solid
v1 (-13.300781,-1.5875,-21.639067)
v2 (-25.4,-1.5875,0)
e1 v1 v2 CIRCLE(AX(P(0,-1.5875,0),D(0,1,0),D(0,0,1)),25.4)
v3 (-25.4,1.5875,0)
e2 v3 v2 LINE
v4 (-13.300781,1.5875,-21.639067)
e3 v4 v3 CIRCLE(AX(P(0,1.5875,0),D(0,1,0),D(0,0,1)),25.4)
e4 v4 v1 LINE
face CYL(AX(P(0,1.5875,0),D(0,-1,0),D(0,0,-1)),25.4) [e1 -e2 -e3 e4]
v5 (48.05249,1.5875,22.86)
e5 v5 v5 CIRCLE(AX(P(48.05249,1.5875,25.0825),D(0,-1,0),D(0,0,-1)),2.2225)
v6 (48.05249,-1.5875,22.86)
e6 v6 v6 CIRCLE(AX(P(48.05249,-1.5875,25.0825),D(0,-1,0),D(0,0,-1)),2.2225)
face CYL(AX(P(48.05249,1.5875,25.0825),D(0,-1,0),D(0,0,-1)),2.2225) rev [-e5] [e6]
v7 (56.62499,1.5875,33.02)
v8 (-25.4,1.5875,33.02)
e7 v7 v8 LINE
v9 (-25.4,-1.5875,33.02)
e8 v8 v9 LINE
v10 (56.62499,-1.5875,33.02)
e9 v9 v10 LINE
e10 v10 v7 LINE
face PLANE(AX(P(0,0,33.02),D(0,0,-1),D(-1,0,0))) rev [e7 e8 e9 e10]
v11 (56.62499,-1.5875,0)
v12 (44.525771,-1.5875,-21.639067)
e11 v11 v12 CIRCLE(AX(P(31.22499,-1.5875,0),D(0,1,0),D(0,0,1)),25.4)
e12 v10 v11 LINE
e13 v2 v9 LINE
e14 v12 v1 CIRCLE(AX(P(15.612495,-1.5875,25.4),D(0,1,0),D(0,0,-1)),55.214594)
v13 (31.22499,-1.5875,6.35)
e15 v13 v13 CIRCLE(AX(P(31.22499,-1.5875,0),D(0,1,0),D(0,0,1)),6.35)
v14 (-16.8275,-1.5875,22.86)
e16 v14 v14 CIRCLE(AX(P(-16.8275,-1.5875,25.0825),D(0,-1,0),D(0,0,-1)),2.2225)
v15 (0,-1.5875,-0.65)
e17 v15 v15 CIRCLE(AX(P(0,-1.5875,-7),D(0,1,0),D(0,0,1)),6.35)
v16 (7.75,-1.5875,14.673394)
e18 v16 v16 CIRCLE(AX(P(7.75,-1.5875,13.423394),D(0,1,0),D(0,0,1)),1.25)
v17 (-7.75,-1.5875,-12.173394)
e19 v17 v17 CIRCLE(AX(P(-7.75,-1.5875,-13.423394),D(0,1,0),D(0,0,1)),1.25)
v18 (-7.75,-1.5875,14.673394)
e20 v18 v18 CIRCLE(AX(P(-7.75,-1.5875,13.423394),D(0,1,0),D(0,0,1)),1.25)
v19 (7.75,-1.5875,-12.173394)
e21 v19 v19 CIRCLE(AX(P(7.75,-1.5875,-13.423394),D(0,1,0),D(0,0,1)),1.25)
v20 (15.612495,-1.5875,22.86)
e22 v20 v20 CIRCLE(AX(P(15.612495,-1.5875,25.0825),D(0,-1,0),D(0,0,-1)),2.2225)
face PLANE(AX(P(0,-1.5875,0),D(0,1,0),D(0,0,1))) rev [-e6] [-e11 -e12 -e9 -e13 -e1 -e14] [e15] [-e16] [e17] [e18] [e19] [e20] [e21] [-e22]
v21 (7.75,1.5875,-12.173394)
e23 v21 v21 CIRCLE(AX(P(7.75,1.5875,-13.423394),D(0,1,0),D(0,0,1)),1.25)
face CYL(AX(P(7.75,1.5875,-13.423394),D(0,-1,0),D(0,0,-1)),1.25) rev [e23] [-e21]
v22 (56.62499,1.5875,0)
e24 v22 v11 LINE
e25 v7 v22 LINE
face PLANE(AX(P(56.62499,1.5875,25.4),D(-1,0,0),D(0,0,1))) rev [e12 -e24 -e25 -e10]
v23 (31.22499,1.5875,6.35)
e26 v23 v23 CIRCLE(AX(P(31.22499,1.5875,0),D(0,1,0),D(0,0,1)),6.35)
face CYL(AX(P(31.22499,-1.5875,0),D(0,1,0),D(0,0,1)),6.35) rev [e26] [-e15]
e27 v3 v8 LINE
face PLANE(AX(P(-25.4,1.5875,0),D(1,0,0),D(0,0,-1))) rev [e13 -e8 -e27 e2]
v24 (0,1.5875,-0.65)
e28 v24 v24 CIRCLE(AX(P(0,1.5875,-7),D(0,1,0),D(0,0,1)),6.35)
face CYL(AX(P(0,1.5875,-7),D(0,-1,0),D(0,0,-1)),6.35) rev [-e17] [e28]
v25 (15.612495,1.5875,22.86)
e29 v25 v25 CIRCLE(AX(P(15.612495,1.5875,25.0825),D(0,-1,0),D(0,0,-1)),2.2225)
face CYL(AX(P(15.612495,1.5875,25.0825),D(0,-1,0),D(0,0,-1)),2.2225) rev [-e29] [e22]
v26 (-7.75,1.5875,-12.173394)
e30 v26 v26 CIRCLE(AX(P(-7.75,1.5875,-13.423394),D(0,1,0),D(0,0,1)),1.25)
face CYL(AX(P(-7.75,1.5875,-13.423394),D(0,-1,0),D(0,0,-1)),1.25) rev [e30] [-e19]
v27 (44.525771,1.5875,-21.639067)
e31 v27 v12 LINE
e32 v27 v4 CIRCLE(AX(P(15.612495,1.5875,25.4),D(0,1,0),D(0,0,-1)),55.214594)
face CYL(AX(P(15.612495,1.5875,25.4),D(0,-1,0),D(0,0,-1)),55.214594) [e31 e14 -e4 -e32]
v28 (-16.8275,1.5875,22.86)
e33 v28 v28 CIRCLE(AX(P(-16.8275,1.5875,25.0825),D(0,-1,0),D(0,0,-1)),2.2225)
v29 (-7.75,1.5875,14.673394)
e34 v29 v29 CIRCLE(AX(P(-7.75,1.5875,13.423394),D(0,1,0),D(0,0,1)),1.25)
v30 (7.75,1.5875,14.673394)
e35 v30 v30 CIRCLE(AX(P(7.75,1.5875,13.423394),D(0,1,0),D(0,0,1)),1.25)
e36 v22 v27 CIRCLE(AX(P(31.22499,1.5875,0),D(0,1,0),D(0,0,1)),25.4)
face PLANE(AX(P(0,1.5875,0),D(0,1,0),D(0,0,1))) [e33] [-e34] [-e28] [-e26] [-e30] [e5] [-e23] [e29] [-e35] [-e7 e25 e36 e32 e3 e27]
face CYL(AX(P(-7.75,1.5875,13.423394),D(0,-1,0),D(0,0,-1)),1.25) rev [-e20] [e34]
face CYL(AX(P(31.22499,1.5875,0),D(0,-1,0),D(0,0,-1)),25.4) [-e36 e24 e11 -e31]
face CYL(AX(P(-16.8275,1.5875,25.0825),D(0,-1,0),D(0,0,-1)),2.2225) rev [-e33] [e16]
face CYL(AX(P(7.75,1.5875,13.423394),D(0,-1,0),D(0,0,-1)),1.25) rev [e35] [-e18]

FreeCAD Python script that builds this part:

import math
import FreeCAD as App
import Part
import Sketcher
from FreeCAD import Vector
Q = App.Units.Quantity

doc = App.newDocument("Part")
body = doc.addObject("PartDesign::Body", "Body")

# Sketch on XZ plane
sketch1 = body.newObject("Sketcher::SketchObject", "Sketch")
sketch1.AttachmentSupport = (doc.getObject("XZ_Plane"), [""])
sketch1.MapMode = "FlatFace"
sketch1.addGeometry([
    Part.LineSegment(Vector(-25.4, 0, 0), Vector(-25.4, 25.4, 0)),  # 0
    Part.LineSegment(Vector(-25.4, 25.4, 0), Vector(25.4, 25.4, 0)),  # 1
    Part.LineSegment(Vector(25.4, 25.4, 0), Vector(25.4, 0, 0)),  # 2
    Part.ArcOfCircle(Part.Circle(Vector(0, 0, 0), Vector(0, 0, 1), 25.4), math.radians(180), math.radians(360)),  # 3
    Part.Circle(Vector(-7.75, 13.423394, 0), Vector(0, 0, 1), 1.25),  # 4
    Part.Circle(Vector(7.75, 13.423394, 0), Vector(0, 0, 1), 1.25),  # 5
    Part.Circle(Vector(-7.75, -13.423394, 0), Vector(0, 0, 1), 1.25),  # 6
    Part.Circle(Vector(0, -7, 0), Vector(0, 0, 1), 6.35),  # 7
    Part.Circle(Vector(7.75, -13.423394, 0), Vector(0, 0, 1), 1.25),  # 8
], False)
sketch1.addConstraint([
    Sketcher.Constraint("Coincident", 0, 2, 1, 1),
    Sketcher.Constraint("Coincident", 1, 2, 2, 1),
    Sketcher.Constraint("Tangent", 2, 2, 3, 2),
    Sketcher.Constraint("Tangent", 3, 1, 0, 1),
    Sketcher.Constraint("Vertical", 0),
    Sketcher.Constraint("Horizontal", 1),
    Sketcher.Constraint("Vertical", 2),
    Sketcher.Constraint("Coincident", 3, 3, -1, 1),
    Sketcher.Constraint("Equal", 4, 5),
    Sketcher.Constraint("Equal", 5, 6),
    Sketcher.Constraint("Equal", 6, 8),
    Sketcher.Constraint("Symmetric", 5, 3, 6, 3, -1, 1),
    Sketcher.Constraint("Symmetric", 4, 3, 8, 3, -1, 1),
    Sketcher.Constraint("Symmetric", 4, 3, 5, 3, -2),
    Sketcher.Constraint("PointOnObject", 7, 3, -2),
    Sketcher.Constraint("Radius", 3, Q("1 in")),
    Sketcher.Constraint("Diameter", 7, Q("0.5 in")),
    Sketcher.Constraint("DistanceY", 0, 1, 0, 2, Q("1 in")),
    Sketcher.Constraint("Diameter", 4, Q("2.5 mm")),
    Sketcher.Constraint("DistanceX", 4, 3, -1, 1, Q("7.75 mm")),
    Sketcher.Constraint("DistanceY", 7, 3, -1, 1, Q("7 mm")),
    Sketcher.Constraint("DistanceY", -1, 1, 4, 3, Q("13.423394 mm")),
])
pad1 = body.newObject("PartDesign::Pad", "Pad")
pad1.Profile = sketch1
pad1.Length = Q("0.125 in")
pad1.Midplane = True

# Sketch on XZ plane
sketch2 = body.newObject("Sketcher::SketchObject", "Sketch001")
sketch2.AttachmentSupport = (doc.getObject("XZ_Plane"), [""])
sketch2.MapMode = "FlatFace"
sketch2.addGeometry([
    Part.LineSegment(Vector(25.4, 0, 0), Vector(25.4, 25.4, 0)),  # 0
    Part.LineSegment(Vector(25.4, 25.4, 0), Vector(56.62499, 25.4, 0)),  # 1
    Part.LineSegment(Vector(56.62499, 25.4, 0), Vector(56.62499, 0, 0)),  # 2
    Part.ArcOfCircle(Part.Circle(Vector(31.22499, 0, 0), Vector(0, 0, 1), 25.4), math.radians(-58.422407), math.radians(0)),  # 3
    Part.ArcOfCircle(Part.Circle(Vector(15.612495, 25.4, 0), Vector(0, 0, 1), 55.214594), math.radians(-121.577593), math.radians(-58.422407)),  # 4
    Part.ArcOfCircle(Part.Circle(Vector(0, 0, 0), Vector(0, 0, 1), 25.4), math.radians(-121.577593), math.radians(0)),  # 5
], False)
sketch2.addConstraint([
    Sketcher.Constraint("Coincident", 0, 2, 1, 1),
    Sketcher.Constraint("Coincident", 1, 2, 2, 1),
    Sketcher.Constraint("Tangent", 2, 2, 3, 2),
    Sketcher.Constraint("Tangent", 3, 1, 4, 2),
    Sketcher.Constraint("Tangent", 4, 1, 5, 1),
    Sketcher.Constraint("Tangent", 5, 2, 0, 1),
    Sketcher.Constraint("Vertical", 0),
    Sketcher.Constraint("Horizontal", 1),
    Sketcher.Constraint("Vertical", 2),
    Sketcher.Constraint("Coincident", 5, 3, -1, 1),
    Sketcher.Constraint("Equal", 3, 5),
    Sketcher.Constraint("PointOnObject", 3, 3, -1),
    Sketcher.Constraint("Horizontal", 4, 3, 0, 2),
    Sketcher.Constraint("Radius", 3, Q("1 in")),
    Sketcher.Constraint("DistanceY", 0, 1, 0, 2, Q("1 in")),
    Sketcher.Constraint("Radius", 4, Q("55.214594 mm")),
])
pad2 = body.newObject("PartDesign::Pad", "Pad001")
pad2.Profile = sketch2
pad2.Type = "TwoLengths"
pad2.Length = Q("0.0625 in")
pad2.Length2 = Q("0.0625 in")
pad2.Reversed = True

# Sketch on XZ plane
sketch3 = body.newObject("Sketcher::SketchObject", "Sketch002")
sketch3.AttachmentSupport = (doc.getObject("XZ_Plane"), [""])
sketch3.MapMode = "FlatFace"
sketch3.AttachmentOffset = App.Placement(Vector(0, 0, -0.0625 * 25.4), App.Rotation())
sketch3.addGeometry(Part.Circle(Vector(31.22499, 0, 0), Vector(0, 0, 1), 6.35), False)
sketch3.addConstraint([
    Sketcher.Constraint("PointOnObject", 0, 3, -1),
    Sketcher.Constraint("Diameter", 0, Q("0.5 in")),
    Sketcher.Constraint("DistanceX", -1, 1, 0, 3, Q("31.22499 mm")),
])
pocket1 = body.newObject("PartDesign::Pocket", "Pocket")
pocket1.Profile = sketch3
pocket1.Type = "ThroughAll"
pocket1.Reversed = True

# Sketch on XY plane
sketch4 = body.newObject("Sketcher::SketchObject", "Sketch003")
sketch4.AttachmentSupport = (doc.getObject("XY_Plane"), [""])
sketch4.MapMode = "FlatFace"
sketch4.AttachmentOffset = App.Placement(Vector(0, 0, 1 * 25.4), App.Rotation())
sketch4.addGeometry([
    Part.LineSegment(Vector(-25.4, 1.5875, 0), Vector(-25.4, -1.5875, 0)),
    Part.LineSegment(Vector(-25.4, -1.5875, 0), Vector(56.62499, -1.5875, 0)),
    Part.LineSegment(Vector(56.62499, -1.5875, 0), Vector(56.62499, 1.5875, 0)),
    Part.LineSegment(Vector(56.62499, 1.5875, 0), Vector(-25.4, 1.5875, 0)),
], False)
sketch4.addConstraint([
    Sketcher.Constraint("Coincident", 0, 2, 1, 1),
    Sketcher.Constraint("Coincident", 1, 2, 2, 1),
    Sketcher.Constraint("Coincident", 2, 2, 3, 1),
    Sketcher.Constraint("Coincident", 3, 2, 0, 1),
    Sketcher.Constraint("Vertical", 0),
    Sketcher.Constraint("Horizontal", 1),
    Sketcher.Constraint("Vertical", 2),
    Sketcher.Constraint("Horizontal", 3),
    Sketcher.Constraint("DistanceX", 0, 2, -1, 1, Q("1 in")),
    Sketcher.Constraint("DistanceY", 0, 2, 0, 1, Q("0.125 in")),
    Sketcher.Constraint("DistanceY", 0, 2, -1, 1, Q("0.0625 in")),
    Sketcher.Constraint("DistanceX", 1, 1, 1, 2, Q("82.02499 mm")),
])
pad3 = body.newObject("PartDesign::Pad", "Pad002")
pad3.Profile = sketch4
pad3.Length = Q("0.3 in")

# Sketch on XZ plane
sketch5 = body.newObject("Sketcher::SketchObject", "Sketch004")
sketch5.AttachmentSupport = (doc.getObject("XZ_Plane"), [""])
sketch5.MapMode = "FlatFace"
sketch5.AttachmentOffset = App.Placement(Vector(0, 0, 0.0625 * 25.4), App.Rotation())
sketch5.addGeometry([
    Part.Circle(Vector(15.612495, 25.0825, 0), Vector(0, 0, 1), 2.2225),
    Part.Circle(Vector(48.05249, 25.0825, 0), Vector(0, 0, 1), 2.2225),
    Part.Circle(Vector(-16.8275, 25.0825, 0), Vector(0, 0, 1), 2.2225),
], False)
sketch5.addConstraint([
    Sketcher.Constraint("Equal", 0, 1),
    Sketcher.Constraint("Equal", 1, 2),
    Sketcher.Constraint("Horizontal", 0, 3, 1, 3),
    Sketcher.Constraint("Horizontal", 1, 3, 2, 3),
    Sketcher.Constraint("Diameter", 0, Q("0.175 in")),
    Sketcher.Constraint("DistanceY", -1, 1, 0, 3, Q("0.9875 in")),
    Sketcher.Constraint("DistanceX", 2, 3, -1, 1, Q("0.6625 in")),
    Sketcher.Constraint("DistanceX", -1, 1, 1, 3, Q("48.05249 mm")),
    Sketcher.Constraint("DistanceX", -1, 1, 0, 3, Q("15.612495 mm")),
])
pocket2 = body.newObject("PartDesign::Pocket", "Pocket001")
pocket2.Profile = sketch5
pocket2.Type = "ThroughAll"

doc.recompute()
